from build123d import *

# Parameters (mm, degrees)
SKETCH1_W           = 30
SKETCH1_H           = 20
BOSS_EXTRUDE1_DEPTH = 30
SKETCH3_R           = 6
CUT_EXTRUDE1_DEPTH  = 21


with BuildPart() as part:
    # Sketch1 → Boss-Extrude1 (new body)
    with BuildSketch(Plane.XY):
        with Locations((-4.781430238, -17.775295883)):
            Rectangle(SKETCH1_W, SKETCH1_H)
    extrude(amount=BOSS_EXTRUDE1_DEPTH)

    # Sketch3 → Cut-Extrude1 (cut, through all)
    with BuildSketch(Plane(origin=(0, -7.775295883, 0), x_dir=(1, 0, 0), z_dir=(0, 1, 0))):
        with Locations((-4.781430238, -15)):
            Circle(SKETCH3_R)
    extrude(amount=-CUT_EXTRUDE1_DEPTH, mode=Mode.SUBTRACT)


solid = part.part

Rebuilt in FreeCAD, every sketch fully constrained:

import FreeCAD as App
import Part
import Sketcher
from FreeCAD import Vector

doc = App.newDocument("Part")
body = doc.addObject("PartDesign::Body", "Body")

sketch1 = body.newObject("Sketcher::SketchObject", "Sketch")
sketch1.AttachmentSupport = (doc.getObject("XY_Plane"), [""])
sketch1.MapMode = "FlatFace"
sketch1.addGeometry([
    Part.LineSegment(Vector(-19.78143, -7.775296, 0), Vector(-19.78143, -27.775296, 0)),
    Part.LineSegment(Vector(-19.78143, -27.775296, 0), Vector(10.21857, -27.775296, 0)),
    Part.LineSegment(Vector(10.21857, -27.775296, 0), Vector(10.21857, -7.775296, 0)),
    Part.LineSegment(Vector(10.21857, -7.775296, 0), Vector(-19.78143, -7.775296, 0)),
], False)
sketch1.addConstraint([
    Sketcher.Constraint("Coincident", 0, 2, 1, 1),
    Sketcher.Constraint("Coincident", 1, 2, 2, 1),
    Sketcher.Constraint("Coincident", 2, 2, 3, 1),
    Sketcher.Constraint("Coincident", 3, 2, 0, 1),
    Sketcher.Constraint("Vertical", 0),
    Sketcher.Constraint("Horizontal", 1),
    Sketcher.Constraint("Vertical", 2),
    Sketcher.Constraint("Horizontal", 3),
    Sketcher.Constraint("DistanceX", 1, 1, 1, 2, 30.0),
    Sketcher.Constraint("DistanceY", 0, 2, 0, 1, 20.0),
    Sketcher.Constraint("DistanceX", 0, 2, -1, 1, 19.78143),
    Sketcher.Constraint("DistanceY", 0, 2, -1, 1, 27.775296),
])
pad1 = body.newObject("PartDesign::Pad", "Pad")
pad1.Profile = sketch1
pad1.Length = 30

sketch2 = body.newObject("Sketcher::SketchObject", "Sketch001")
sketch2.AttachmentSupport = (doc.getObject("XZ_Plane"), [""])
sketch2.MapMode = "FlatFace"
sketch2.AttachmentOffset = App.Placement(Vector(0, 0, 7.775296), App.Rotation())
sketch2.addGeometry(Part.Circle(Vector(-4.78143, 15, 0), Vector(0, 0, 1), 6), False)
sketch2.addConstraint([
    Sketcher.Constraint("Diameter", 0, 12.0),
    Sketcher.Constraint("DistanceY", -1, 1, 0, 3, 15.0),
    Sketcher.Constraint("DistanceX", 0, 3, -1, 1, 4.78143),
])
pocket1 = body.newObject("PartDesign::Pocket", "Pocket")
pocket1.Profile = sketch2
pocket1.Type = "ThroughAll"
pocket1.Reversed = True

doc.recompute()
